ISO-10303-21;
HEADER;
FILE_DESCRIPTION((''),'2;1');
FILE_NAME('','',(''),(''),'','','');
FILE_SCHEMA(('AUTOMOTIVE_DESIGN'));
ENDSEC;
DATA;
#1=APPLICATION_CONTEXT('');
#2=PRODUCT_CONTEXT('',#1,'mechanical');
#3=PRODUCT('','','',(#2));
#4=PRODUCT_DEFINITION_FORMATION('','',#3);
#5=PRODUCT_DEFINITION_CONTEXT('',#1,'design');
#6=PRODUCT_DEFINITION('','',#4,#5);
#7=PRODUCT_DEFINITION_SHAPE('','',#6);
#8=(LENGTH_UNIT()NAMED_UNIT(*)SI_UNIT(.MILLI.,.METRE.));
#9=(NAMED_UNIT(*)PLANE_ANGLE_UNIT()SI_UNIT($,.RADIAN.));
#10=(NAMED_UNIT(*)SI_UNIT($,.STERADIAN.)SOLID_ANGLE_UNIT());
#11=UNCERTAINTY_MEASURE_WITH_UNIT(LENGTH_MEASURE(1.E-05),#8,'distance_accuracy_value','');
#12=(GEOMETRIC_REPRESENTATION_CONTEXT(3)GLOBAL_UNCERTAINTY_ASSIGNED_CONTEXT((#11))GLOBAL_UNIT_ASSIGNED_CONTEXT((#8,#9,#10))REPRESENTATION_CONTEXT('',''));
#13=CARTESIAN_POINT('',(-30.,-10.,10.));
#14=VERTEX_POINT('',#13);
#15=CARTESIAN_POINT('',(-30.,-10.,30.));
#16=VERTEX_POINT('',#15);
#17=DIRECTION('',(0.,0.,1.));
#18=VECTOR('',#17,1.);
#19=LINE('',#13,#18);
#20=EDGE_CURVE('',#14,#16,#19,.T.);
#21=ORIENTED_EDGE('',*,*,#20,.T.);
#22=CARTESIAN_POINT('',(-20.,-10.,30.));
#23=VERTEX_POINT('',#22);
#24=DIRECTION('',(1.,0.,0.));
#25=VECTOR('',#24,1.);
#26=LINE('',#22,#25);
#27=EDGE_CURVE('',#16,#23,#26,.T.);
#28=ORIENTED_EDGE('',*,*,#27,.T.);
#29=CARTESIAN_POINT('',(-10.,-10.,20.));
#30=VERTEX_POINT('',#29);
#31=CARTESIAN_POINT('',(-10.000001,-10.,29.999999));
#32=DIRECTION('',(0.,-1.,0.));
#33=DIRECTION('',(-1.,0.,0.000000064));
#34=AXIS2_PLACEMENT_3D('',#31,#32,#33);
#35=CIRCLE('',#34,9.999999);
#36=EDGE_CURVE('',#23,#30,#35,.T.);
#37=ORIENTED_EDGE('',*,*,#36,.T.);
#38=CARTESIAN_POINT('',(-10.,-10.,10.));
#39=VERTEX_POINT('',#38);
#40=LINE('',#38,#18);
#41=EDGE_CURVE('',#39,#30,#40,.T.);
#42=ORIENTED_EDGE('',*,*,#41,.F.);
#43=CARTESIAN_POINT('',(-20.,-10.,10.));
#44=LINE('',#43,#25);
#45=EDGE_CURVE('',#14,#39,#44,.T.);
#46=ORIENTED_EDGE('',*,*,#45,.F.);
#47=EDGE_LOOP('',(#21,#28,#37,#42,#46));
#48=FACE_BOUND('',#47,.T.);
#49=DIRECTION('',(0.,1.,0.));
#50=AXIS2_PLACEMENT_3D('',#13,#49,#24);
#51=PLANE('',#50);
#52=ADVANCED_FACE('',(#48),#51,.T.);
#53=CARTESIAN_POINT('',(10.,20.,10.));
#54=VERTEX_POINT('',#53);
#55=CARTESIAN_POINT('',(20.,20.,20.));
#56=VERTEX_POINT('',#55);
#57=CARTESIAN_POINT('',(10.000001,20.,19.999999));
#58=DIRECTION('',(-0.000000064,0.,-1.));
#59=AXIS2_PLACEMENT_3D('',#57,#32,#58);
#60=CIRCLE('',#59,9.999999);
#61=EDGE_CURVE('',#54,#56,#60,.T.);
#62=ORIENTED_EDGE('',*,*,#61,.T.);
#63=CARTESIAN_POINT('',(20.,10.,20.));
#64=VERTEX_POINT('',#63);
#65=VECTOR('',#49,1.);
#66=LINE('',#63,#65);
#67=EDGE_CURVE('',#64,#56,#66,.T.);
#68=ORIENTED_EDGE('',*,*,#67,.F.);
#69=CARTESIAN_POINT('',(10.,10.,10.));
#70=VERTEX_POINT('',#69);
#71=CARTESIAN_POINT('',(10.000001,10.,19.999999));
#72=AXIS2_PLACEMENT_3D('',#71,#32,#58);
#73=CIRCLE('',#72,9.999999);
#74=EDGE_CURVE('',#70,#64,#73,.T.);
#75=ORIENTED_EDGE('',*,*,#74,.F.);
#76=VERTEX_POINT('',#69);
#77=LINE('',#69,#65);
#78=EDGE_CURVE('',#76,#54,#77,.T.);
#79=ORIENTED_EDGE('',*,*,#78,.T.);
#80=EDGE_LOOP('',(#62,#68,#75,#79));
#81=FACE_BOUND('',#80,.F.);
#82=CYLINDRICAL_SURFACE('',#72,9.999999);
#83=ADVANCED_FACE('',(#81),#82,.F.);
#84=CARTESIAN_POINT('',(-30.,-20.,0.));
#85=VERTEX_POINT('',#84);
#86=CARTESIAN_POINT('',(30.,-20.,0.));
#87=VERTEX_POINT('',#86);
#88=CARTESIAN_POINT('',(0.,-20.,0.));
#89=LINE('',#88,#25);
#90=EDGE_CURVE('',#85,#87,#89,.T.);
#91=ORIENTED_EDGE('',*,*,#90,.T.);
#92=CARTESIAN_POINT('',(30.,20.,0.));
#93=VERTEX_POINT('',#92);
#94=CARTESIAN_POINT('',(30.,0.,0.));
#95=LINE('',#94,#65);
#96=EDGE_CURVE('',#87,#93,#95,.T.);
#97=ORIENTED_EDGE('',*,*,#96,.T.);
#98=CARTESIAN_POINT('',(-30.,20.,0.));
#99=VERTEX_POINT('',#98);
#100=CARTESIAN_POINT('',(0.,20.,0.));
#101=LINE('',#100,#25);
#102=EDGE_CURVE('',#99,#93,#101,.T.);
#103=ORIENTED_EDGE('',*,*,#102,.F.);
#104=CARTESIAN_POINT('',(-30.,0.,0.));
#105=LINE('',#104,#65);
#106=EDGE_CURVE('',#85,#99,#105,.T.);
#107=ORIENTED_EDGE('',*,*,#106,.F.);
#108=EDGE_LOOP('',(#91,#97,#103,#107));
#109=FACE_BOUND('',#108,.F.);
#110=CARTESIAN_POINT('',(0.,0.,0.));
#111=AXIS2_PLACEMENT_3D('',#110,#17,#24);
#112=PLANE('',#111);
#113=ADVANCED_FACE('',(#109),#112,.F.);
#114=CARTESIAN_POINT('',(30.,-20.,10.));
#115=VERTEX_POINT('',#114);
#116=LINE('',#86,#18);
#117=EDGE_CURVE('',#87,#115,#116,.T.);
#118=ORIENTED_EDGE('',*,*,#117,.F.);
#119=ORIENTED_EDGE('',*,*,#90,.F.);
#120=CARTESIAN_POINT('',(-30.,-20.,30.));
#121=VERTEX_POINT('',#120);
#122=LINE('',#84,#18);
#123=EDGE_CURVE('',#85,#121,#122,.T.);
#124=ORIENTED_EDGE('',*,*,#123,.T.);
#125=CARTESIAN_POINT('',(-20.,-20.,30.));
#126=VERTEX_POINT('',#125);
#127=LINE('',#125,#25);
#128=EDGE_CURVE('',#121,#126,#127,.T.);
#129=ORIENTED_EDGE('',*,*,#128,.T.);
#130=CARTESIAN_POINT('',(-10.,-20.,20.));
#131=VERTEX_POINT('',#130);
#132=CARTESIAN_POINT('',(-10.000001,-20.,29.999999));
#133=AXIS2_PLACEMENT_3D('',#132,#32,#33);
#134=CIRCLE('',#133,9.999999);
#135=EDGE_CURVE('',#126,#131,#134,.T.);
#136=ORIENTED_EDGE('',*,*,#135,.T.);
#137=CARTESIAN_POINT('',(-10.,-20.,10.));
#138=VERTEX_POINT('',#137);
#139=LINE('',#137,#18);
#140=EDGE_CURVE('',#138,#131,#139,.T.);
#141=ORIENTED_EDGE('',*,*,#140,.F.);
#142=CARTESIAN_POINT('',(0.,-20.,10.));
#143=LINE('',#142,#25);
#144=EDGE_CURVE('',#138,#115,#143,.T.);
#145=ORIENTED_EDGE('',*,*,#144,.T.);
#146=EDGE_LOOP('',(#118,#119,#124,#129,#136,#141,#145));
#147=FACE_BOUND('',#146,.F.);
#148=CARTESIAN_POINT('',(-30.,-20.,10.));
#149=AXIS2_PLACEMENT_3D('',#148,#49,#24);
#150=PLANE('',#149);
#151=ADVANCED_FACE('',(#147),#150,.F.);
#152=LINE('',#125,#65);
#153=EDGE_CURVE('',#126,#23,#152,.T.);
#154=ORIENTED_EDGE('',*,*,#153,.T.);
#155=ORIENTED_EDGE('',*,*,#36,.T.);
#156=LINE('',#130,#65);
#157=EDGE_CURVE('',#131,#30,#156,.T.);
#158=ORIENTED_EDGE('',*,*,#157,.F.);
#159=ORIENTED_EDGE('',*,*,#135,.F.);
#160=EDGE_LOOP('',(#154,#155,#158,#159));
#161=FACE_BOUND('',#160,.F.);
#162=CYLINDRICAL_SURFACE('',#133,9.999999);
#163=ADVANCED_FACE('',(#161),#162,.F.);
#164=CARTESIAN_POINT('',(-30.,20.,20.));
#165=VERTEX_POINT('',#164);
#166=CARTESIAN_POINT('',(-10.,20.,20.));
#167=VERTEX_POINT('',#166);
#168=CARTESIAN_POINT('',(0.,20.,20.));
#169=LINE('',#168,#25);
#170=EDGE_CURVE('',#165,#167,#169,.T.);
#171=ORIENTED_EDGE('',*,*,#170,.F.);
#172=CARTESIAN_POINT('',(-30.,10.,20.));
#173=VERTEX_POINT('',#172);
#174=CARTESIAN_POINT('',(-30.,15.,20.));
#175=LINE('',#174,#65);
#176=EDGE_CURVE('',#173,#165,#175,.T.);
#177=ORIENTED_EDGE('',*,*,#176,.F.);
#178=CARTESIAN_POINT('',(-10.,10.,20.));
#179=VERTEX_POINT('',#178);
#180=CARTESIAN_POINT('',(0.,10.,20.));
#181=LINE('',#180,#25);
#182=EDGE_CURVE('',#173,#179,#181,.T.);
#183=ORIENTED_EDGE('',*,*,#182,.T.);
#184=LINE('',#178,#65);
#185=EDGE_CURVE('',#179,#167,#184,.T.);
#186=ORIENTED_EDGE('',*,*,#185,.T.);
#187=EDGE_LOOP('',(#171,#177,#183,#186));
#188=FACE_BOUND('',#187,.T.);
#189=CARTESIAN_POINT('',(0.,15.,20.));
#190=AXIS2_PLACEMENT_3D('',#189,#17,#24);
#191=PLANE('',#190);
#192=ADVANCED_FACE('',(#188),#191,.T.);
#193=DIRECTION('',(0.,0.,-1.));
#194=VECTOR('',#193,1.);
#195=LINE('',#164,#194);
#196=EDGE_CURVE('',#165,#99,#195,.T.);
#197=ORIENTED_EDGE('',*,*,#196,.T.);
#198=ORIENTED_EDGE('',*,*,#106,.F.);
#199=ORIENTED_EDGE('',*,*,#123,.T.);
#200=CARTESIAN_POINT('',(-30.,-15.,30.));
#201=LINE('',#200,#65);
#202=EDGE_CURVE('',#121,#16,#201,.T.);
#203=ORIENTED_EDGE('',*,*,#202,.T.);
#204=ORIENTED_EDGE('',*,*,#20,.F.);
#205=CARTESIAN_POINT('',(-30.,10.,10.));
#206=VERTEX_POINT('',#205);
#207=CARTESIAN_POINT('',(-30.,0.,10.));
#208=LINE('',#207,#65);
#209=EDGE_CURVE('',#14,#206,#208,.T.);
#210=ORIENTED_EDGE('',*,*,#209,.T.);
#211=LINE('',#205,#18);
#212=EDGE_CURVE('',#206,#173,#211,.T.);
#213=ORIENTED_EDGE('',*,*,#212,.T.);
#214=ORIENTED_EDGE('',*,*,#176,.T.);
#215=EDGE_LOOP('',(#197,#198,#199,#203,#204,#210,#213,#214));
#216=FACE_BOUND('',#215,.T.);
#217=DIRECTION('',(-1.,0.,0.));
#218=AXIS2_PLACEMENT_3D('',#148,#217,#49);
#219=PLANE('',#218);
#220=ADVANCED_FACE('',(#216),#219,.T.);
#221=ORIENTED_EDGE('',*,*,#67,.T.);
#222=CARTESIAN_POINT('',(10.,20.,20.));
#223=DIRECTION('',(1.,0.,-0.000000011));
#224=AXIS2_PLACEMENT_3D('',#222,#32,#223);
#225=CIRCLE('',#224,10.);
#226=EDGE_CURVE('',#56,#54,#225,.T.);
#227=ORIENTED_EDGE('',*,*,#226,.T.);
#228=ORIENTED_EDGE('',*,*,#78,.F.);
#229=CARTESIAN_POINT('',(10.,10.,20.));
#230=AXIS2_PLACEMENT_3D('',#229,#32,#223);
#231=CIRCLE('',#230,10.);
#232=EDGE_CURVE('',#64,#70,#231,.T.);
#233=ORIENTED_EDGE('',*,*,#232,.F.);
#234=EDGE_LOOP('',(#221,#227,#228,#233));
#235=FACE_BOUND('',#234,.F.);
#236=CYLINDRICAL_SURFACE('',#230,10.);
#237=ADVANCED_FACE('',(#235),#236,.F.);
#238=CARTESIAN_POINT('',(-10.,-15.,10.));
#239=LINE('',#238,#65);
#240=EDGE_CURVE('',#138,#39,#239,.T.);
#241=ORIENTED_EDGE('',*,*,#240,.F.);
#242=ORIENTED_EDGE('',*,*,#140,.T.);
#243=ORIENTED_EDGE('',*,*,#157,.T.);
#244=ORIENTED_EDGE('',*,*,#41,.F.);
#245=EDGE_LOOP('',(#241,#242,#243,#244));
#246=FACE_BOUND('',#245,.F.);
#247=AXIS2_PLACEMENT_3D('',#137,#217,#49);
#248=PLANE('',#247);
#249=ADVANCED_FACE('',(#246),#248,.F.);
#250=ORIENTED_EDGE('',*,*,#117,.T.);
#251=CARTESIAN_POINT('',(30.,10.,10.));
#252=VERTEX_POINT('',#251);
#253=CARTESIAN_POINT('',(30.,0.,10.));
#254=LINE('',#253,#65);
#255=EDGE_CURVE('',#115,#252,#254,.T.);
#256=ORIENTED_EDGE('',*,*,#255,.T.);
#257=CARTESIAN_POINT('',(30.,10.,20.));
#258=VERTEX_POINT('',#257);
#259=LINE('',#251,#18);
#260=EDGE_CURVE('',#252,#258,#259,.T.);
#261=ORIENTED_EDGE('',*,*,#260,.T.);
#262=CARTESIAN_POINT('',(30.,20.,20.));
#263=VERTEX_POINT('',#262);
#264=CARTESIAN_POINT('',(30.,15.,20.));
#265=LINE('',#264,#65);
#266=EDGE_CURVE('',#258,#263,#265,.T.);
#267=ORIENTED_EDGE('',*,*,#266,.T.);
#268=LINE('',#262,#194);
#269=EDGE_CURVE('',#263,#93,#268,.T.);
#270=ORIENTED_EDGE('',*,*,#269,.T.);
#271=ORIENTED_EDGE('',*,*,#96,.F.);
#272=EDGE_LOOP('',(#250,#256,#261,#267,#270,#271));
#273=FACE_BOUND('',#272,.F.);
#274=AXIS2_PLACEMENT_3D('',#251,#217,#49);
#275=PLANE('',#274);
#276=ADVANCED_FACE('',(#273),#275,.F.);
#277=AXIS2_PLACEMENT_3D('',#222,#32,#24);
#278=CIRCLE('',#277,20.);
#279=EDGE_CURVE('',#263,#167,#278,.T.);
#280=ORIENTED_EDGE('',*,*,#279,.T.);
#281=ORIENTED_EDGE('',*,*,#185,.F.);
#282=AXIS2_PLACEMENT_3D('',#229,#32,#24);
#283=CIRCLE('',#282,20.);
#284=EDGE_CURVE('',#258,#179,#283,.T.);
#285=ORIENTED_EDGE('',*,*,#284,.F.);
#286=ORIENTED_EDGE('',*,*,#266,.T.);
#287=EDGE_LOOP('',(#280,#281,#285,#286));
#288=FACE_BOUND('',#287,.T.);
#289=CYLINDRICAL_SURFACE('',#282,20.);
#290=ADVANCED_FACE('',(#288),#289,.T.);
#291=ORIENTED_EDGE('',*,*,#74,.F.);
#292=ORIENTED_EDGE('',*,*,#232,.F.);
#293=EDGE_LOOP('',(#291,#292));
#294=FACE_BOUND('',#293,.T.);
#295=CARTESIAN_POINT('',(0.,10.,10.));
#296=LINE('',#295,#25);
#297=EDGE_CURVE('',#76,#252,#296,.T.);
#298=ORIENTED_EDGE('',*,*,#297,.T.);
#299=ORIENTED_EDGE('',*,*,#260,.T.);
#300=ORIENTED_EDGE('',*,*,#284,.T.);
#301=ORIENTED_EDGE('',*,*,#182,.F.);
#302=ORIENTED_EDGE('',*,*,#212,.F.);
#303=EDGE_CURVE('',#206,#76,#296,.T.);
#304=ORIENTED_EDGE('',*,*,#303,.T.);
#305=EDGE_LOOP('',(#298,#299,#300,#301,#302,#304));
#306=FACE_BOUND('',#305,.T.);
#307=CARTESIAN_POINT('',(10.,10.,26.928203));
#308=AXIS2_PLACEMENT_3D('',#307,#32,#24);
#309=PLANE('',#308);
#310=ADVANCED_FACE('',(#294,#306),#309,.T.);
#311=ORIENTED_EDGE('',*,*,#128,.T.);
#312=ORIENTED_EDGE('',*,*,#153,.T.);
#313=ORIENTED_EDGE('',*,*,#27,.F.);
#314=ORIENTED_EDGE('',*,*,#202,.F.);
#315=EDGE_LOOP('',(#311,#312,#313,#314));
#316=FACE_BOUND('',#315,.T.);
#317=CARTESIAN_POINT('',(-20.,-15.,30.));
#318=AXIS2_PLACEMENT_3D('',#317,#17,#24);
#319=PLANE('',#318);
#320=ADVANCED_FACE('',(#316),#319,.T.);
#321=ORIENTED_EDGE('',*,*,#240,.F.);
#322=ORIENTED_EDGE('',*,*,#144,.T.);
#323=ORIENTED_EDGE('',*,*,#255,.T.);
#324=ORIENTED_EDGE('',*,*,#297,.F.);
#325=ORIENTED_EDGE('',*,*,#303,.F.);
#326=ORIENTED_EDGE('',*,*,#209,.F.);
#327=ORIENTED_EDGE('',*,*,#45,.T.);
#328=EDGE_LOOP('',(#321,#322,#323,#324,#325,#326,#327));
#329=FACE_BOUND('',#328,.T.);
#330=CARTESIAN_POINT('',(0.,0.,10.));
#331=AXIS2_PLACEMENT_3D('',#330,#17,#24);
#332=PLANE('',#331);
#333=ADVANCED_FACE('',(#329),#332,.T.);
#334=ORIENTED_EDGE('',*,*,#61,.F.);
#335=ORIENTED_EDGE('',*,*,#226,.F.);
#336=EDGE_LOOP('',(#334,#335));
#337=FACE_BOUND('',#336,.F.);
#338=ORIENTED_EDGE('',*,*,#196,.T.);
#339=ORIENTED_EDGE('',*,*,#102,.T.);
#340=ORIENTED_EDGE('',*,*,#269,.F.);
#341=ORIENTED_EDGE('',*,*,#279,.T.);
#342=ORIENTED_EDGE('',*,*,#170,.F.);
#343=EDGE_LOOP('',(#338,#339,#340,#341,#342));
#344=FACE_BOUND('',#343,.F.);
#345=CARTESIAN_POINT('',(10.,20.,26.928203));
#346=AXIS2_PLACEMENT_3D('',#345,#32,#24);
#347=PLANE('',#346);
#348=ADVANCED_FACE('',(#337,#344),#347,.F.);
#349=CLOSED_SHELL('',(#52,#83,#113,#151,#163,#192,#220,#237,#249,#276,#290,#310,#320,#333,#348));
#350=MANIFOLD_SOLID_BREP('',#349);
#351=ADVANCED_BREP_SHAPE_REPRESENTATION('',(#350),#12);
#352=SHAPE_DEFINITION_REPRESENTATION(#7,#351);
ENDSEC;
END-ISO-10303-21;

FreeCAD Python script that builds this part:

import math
import FreeCAD as App
import Part
import Sketcher
from FreeCAD import Vector


def add_polygon(sketch, points):
    """Adds a closed chain of lines whose ends are joined by coincident constraints."""
    first, n = sketch.GeometryCount, len(points)
    for a, b in zip(points, points[1:] + points[:1]):
        sketch.addGeometry(Part.LineSegment(App.Vector(*a, 0), App.Vector(*b, 0)), False)
    for i in range(n):
        sketch.addConstraint(Sketcher.Constraint("Coincident", first + i, 2, first + (i + 1) % n, 1))

doc = App.newDocument("Part")
body = doc.addObject("PartDesign::Body", "Body")

sketch1 = body.newObject("Sketcher::SketchObject", "Sketch")
sketch1.AttachmentSupport = (doc.getObject("XY_Plane"), [""])
sketch1.MapMode = "FlatFace"
add_polygon(sketch1, [(-30, 20), (-30, -20), (30, -20), (30, 20)])
sketch1.addConstraint([
    Sketcher.Constraint("Vertical", 0),
    Sketcher.Constraint("Horizontal", 1),
    Sketcher.Constraint("Vertical", 2),
    Sketcher.Constraint("Horizontal", 3),
    Sketcher.Constraint("Symmetric", 0, 2, 2, 2, -1, 1),
    Sketcher.Constraint("DistanceX", 1, 1, 1, 2, 60.0),
    Sketcher.Constraint("DistanceY", 0, 2, 0, 1, 40.0),
])
pad1 = body.newObject("PartDesign::Pad", "Pad")
pad1.Profile = sketch1
pad1.Length = 10

sketch2 = body.newObject("Sketcher::SketchObject", "Sketch001")
sketch2.AttachmentSupport = (doc.getObject("XY_Plane"), [""])
sketch2.MapMode = "FlatFace"
sketch2.AttachmentOffset = App.Placement(Vector(0, 0, 10), App.Rotation())
add_polygon(sketch2, [(-30, 20), (-30, 10), (30, 10), (30, 20)])
sketch2.addConstraint([
    Sketcher.Constraint("Vertical", 0),
    Sketcher.Constraint("Horizontal", 1),
    Sketcher.Constraint("Vertical", 2),
    Sketcher.Constraint("Horizontal", 3),
    Sketcher.Constraint("DistanceX", 1, 1, 1, 2, 60.0),
    Sketcher.Constraint("DistanceY", 0, 2, 0, 1, 10.0),
    Sketcher.Constraint("DistanceX", 0, 2, -1, 1, 30.0),
    Sketcher.Constraint("DistanceY", -1, 1, 0, 2, 10.0),
])
pad2 = body.newObject("PartDesign::Pad", "Pad001")
pad2.Profile = sketch2
pad2.Length = 10

sketch3 = body.newObject("Sketcher::SketchObject", "Sketch002")
sketch3.AttachmentSupport = (doc.getObject("XZ_Plane"), [""])
sketch3.MapMode = "FlatFace"
sketch3.AttachmentOffset = App.Placement(Vector(0, 0, -10), App.Rotation())
sketch3.addGeometry([
    Part.LineSegment(Vector(-10, 20, 0), Vector(30, 20, 0)),
    Part.ArcOfCircle(Part.Circle(Vector(10, 20, 0), Vector(0, 0, 1), 20), math.radians(0), math.radians(180)),
], False)
sketch3.addConstraint([
    Sketcher.Constraint("Coincident", 0, 1, 1, 2),
    Sketcher.Constraint("Coincident", 1, 1, 0, 2),
    Sketcher.Constraint("Horizontal", 0),
    Sketcher.Constraint("Horizontal", 1, 3, 0, 1),
    Sketcher.Constraint("Radius", 1, 20.0),
    Sketcher.Constraint("DistanceX", -1, 1, 1, 3, 10.0),
    Sketcher.Constraint("DistanceY", -1, 1, 1, 3, 20.0),
])
pad3 = body.newObject("PartDesign::Pad", "Pad002")
pad3.Profile = sketch3
pad3.Length = 10
pad3.Reversed = True

sketch4 = body.newObject("Sketcher::SketchObject", "Sketch003")
sketch4.AttachmentSupport = (doc.getObject("XZ_Plane"), [""])
sketch4.MapMode = "FlatFace"
sketch4.AttachmentOffset = App.Placement(Vector(0, 0, -10), App.Rotation())
sketch4.addGeometry([
    Part.ArcOfCircle(Part.Circle(Vector(10, 20, 0), Vector(0, 0, 1), 10), math.radians(-90), math.radians(0)),
    Part.ArcOfCircle(Part.Circle(Vector(10, 20, 0), Vector(0, 0, 1), 10), math.radians(0), math.radians(270)),
], False)
sketch4.addConstraint([
    Sketcher.Constraint("Tangent", 0, 1, 1, 2),
    Sketcher.Constraint("Coincident", 1, 1, 0, 2),
    Sketcher.Constraint("Horizontal", 0, 3, 1, 1),
    Sketcher.Constraint("Vertical", 1, 3, 0, 1),
    Sketcher.Constraint("Radius", 0, 9.999999),
    Sketcher.Constraint("DistanceX", -1, 1, 0, 3, 10.000001),
    Sketcher.Constraint("DistanceY", -1, 1, 0, 3, 19.999999),
])
pocket1 = body.newObject("PartDesign::Pocket", "Pocket")
pocket1.Profile = sketch4
pocket1.Length = 10

sketch5 = body.newObject("Sketcher::SketchObject", "Sketch004")
sketch5.AttachmentSupport = (doc.getObject("XY_Plane"), [""])
sketch5.MapMode = "FlatFace"
sketch5.AttachmentOffset = App.Placement(Vector(0, 0, 10), App.Rotation())
add_polygon(sketch5, [(-30, -10), (-30, -20), (-10, -20), (-10, -10)])
sketch5.addConstraint([
    Sketcher.Constraint("Vertical", 0),
    Sketcher.Constraint("Horizontal", 1),
    Sketcher.Constraint("Vertical", 2),
    Sketcher.Constraint("Horizontal", 3),
    Sketcher.Constraint("DistanceX", 1, 1, 1, 2, 20.0),
    Sketcher.Constraint("DistanceY", 0, 2, 0, 1, 10.0),
    Sketcher.Constraint("DistanceX", 0, 2, -1, 1, 30.0),
    Sketcher.Constraint("DistanceY", 0, 2, -1, 1, 20.0),
])
pad4 = body.newObject("PartDesign::Pad", "Pad003")
pad4.Profile = sketch5
pad4.Length = 20

sketch6 = body.newObject("Sketcher::SketchObject", "Sketch005")
sketch6.AttachmentSupport = (doc.getObject("XZ_Plane"), [""])
sketch6.MapMode = "FlatFace"
sketch6.AttachmentOffset = App.Placement(Vector(0, 0, 20), App.Rotation())
sketch6.addGeometry([
    Part.LineSegment(Vector(-10, 30, 0), Vector(-20, 30, 0)),
    Part.ArcOfCircle(Part.Circle(Vector(-10, 30, 0), Vector(0, 0, 1), 10), math.radians(180), math.radians(270)),
    Part.LineSegment(Vector(-10, 20, 0), Vector(-10, 30, 0)),
], False)
sketch6.addConstraint([
    Sketcher.Constraint("Coincident", 0, 2, 1, 1),
    Sketcher.Constraint("Coincident", 1, 2, 2, 1),
    Sketcher.Constraint("Coincident", 2, 2, 0, 1),
    Sketcher.Constraint("Horizontal", 0),
    Sketcher.Constraint("Vertical", 2),
    Sketcher.Constraint("Coincident", 2, 2, 1, 3),
    Sketcher.Constraint("Radius", 1, 9.999999),
    Sketcher.Constraint("DistanceX", 1, 3, -1, 1, 10.000001),
    Sketcher.Constraint("DistanceY", -1, 1, 1, 3, 29.999999),
])
pocket2 = body.newObject("PartDesign::Pocket", "Pocket001")
pocket2.Profile = sketch6
pocket2.Length = 10

doc.recompute()
